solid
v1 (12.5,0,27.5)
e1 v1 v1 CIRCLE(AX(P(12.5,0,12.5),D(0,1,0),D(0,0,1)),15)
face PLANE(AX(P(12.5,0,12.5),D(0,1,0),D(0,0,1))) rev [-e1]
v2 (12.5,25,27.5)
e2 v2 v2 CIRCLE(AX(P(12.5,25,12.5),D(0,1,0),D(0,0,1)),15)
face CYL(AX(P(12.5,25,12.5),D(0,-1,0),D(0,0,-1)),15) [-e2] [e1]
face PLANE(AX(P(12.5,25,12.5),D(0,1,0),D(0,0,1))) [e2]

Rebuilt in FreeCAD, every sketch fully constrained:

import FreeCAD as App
import Part
import Sketcher
from FreeCAD import Vector

doc = App.newDocument("Part")
body = doc.addObject("PartDesign::Body", "Body")

sketch1 = body.newObject("Sketcher::SketchObject", "Sketch")
sketch1.AttachmentSupport = (doc.getObject("XZ_Plane"), [""])
sketch1.MapMode = "FlatFace"
sketch1.addGeometry(Part.Circle(Vector(12, 12, 0), Vector(0, 0, 1), 15), False)
sketch1.addConstraint(Sketcher.Constraint("Diameter", 0, 30.0))
sketch1.addConstraint(Sketcher.Constraint("DistanceX", -1, 1, 0, 3, 12.5))
sketch1.addConstraint(Sketcher.Constraint("DistanceY", -1, 1, 0, 3, 12.5))
pad1 = body.newObject("PartDesign::Pad", "Pad")
pad1.Profile = sketch1
pad1.Length = 25
pad1.Reversed = True

doc.recompute()
